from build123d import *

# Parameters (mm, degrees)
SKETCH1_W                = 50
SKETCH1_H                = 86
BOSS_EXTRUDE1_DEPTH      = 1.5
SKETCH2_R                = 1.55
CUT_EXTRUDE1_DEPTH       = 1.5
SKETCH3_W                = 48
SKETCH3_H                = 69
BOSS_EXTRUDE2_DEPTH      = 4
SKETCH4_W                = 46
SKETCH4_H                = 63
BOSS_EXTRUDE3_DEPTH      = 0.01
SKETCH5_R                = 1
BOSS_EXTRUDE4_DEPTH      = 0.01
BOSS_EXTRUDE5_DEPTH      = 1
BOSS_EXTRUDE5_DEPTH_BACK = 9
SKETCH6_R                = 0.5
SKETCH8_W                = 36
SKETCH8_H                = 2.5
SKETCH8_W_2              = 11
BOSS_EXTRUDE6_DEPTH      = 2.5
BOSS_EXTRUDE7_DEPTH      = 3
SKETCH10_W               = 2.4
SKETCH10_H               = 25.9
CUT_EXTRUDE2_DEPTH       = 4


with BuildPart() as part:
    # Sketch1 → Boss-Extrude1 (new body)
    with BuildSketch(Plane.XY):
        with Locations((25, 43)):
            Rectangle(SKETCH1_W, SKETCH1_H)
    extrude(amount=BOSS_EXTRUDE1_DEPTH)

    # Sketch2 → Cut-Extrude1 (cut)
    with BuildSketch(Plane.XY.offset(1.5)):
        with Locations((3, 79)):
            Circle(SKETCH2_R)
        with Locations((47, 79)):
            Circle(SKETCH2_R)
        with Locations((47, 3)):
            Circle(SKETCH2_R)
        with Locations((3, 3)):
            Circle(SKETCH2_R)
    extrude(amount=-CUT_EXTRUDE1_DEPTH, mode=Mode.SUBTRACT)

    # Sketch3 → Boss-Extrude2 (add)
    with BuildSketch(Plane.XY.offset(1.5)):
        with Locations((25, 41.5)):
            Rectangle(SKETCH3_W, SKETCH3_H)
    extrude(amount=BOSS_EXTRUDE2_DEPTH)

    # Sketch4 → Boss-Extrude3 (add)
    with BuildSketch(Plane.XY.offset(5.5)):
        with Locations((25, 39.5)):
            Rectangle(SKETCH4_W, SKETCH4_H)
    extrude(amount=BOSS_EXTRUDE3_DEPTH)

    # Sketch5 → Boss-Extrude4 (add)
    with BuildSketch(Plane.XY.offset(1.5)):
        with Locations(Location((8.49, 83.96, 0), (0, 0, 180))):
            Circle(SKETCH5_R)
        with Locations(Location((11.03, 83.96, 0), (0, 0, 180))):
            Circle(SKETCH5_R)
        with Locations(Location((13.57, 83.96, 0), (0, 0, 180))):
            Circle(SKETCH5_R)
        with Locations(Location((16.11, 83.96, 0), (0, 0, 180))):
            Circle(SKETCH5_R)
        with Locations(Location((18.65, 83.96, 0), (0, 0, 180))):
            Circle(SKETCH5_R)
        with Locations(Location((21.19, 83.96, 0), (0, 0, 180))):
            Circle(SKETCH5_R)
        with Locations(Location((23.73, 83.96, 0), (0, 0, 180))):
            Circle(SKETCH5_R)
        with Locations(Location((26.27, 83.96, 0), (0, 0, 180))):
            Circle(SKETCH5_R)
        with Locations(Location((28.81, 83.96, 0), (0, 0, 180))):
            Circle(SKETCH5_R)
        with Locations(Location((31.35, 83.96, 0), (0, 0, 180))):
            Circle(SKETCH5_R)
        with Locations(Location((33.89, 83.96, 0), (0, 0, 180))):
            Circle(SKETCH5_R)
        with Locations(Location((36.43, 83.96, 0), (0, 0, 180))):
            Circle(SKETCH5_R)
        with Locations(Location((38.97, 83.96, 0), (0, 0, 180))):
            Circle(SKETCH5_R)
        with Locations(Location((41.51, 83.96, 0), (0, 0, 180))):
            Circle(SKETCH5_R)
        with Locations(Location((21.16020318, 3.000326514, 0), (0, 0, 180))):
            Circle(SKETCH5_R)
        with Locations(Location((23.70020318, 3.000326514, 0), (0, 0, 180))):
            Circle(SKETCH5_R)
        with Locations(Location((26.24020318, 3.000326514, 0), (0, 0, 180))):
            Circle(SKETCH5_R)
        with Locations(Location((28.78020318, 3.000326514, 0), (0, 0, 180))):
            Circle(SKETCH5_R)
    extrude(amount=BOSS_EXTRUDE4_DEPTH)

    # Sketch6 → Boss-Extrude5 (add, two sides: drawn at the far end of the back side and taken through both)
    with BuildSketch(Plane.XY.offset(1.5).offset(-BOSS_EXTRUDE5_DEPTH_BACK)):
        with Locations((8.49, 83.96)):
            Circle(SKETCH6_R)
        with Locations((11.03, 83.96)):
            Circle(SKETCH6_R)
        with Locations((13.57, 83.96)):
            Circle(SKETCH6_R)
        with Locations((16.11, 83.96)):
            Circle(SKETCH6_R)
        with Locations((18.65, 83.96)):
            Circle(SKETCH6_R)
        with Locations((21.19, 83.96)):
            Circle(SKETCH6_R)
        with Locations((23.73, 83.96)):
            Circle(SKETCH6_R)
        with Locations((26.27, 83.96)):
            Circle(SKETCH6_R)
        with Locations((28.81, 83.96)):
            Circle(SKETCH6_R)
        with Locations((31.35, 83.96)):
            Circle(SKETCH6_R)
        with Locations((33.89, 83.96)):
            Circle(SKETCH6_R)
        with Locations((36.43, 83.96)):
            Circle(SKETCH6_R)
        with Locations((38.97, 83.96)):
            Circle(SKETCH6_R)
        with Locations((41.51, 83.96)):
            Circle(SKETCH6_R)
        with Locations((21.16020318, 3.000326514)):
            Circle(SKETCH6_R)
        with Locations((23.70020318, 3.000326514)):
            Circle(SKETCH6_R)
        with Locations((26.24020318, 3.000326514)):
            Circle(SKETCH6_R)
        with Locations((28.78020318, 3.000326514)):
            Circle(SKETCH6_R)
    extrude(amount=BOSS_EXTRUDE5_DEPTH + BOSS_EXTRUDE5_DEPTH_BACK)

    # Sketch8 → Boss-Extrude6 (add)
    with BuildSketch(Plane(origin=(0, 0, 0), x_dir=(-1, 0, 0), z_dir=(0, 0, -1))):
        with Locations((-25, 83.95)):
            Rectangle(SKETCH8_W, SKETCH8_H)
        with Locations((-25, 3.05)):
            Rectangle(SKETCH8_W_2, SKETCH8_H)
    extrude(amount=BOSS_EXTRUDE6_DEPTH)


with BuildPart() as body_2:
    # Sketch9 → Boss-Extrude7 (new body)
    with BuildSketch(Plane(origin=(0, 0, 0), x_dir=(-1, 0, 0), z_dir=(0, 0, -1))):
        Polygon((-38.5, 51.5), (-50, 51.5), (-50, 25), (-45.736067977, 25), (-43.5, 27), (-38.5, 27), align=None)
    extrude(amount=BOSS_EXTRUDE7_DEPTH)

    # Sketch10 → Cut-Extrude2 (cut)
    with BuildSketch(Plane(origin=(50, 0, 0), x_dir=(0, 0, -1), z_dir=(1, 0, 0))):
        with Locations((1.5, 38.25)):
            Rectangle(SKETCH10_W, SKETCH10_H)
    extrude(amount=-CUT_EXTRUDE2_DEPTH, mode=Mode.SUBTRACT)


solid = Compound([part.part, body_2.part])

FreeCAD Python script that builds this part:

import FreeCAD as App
import Part
import Sketcher

doc = App.newDocument("Part")
params = doc.addObject("Spreadsheet::Sheet", "Params")
for row, (alias, value) in enumerate([
    ("sketch1_width", "50 mm"),
    ("sketch1_height", "86 mm"),
    ("pad1_length", "1.5 mm"),
    ("sketch2_diameter", "3.1 mm"),
    ("pocket1_length", "1.5 mm"),
    ("sketch3_width", "48 mm"),
    ("sketch3_height", "69 mm"),
    ("pad2_length", "4 mm"),
    ("sketch4_width", "46 mm"),
    ("sketch4_height", "63 mm"),
    ("pad3_length", "0.01 mm"),
    ("sketch5_diameter", "2 mm"),
    ("pad4_length", "0.01 mm"),
    ("sketch6_diameter", "1 mm"),
    ("pad5_length", "1 mm"),
    ("pad5_length2", "9 mm"),
    ("sketch7_width", "36 mm"),
    ("sketch7_width2", "11 mm"),
    ("sketch7_height", "2.5 mm"),
    ("pad6_length", "2.5 mm"),
    ("sketch8_width", "5 mm"),
    ("sketch8_length", "3 mm"),
    ("sketch8_width2", "11.5 mm"),
    ("sketch8_height", "26.5 mm"),
    ("sketch8_height2", "24.5 mm"),
    ("pad7_length", "3 mm"),
    ("sketch9_width", "25.9 mm"),
    ("sketch9_height", "2.4 mm"),
    ("pocket2_length", "4 mm"),
], start=1):
    params.set(f"A{row}", alias)
    params.set(f"B{row}", "=" + value)
    params.setAlias(f"B{row}", alias)

body = doc.addObject("PartDesign::Body", "Body")

# Sketch on XY plane
sketch1 = body.newObject("Sketcher::SketchObject", "Sketch")
sketch1.AttachmentSupport = (doc.getObject("XY_Plane"), [""])
sketch1.MapMode = "FlatFace"
sketch1.addGeometry(Part.LineSegment(App.Vector(0, 86, 0), App.Vector(0, 0, 0)), False)
sketch1.addGeometry(Part.LineSegment(App.Vector(0, 0, 0), App.Vector(50, 0, 0)), False)
sketch1.addGeometry(Part.LineSegment(App.Vector(50, 0, 0), App.Vector(50, 86, 0)), False)
sketch1.addGeometry(Part.LineSegment(App.Vector(50, 86, 0), App.Vector(0, 86, 0)), False)
sketch1.addConstraint(Sketcher.Constraint("Coincident", 0, 2, 1, 1))
sketch1.addConstraint(Sketcher.Constraint("Coincident", 1, 2, 2, 1))
sketch1.addConstraint(Sketcher.Constraint("Coincident", 2, 2, 3, 1))
sketch1.addConstraint(Sketcher.Constraint("Coincident", 3, 2, 0, 1))
sketch1.addConstraint(Sketcher.Constraint("Vertical", 0))
sketch1.addConstraint(Sketcher.Constraint("Horizontal", 1))
sketch1.addConstraint(Sketcher.Constraint("Vertical", 2))
sketch1.addConstraint(Sketcher.Constraint("Horizontal", 3))
sketch1.addConstraint(Sketcher.Constraint("Coincident", 0, 2, -1, 1))
sketch1.addConstraint(Sketcher.Constraint("DistanceX", 1, 1, 1, 2, 50.0))
sketch1.addConstraint(Sketcher.Constraint("DistanceY", 0, 2, 0, 1, 86.0))
sketch1.setExpression("Constraints[9]", "Params.sketch1_width")
sketch1.setExpression("Constraints[10]", "Params.sketch1_height")
pad1 = body.newObject("PartDesign::Pad", "Pad")
pad1.Profile = sketch1
pad1.setExpression("Length", "Params.pad1_length")

# Sketch on XY plane
sketch2 = body.newObject("Sketcher::SketchObject", "Sketch001")
sketch2.AttachmentSupport = (doc.getObject("XY_Plane"), [""])
sketch2.MapMode = "FlatFace"
sketch2.AttachmentOffset = App.Placement(App.Vector(0, 0, 1.5), App.Rotation())
sketch2.addGeometry(Part.Circle(App.Vector(3, 79, 0), App.Vector(0, 0, 1), 1.6), False)
sketch2.addGeometry(Part.Circle(App.Vector(47, 79, 0), App.Vector(0, 0, 1), 1.6), False)
sketch2.addGeometry(Part.Circle(App.Vector(47, 3, 0), App.Vector(0, 0, 1), 1.6), False)
sketch2.addGeometry(Part.Circle(App.Vector(3, 3, 0), App.Vector(0, 0, 1), 1.6), False)
sketch2.addConstraint(Sketcher.Constraint("Equal", 0, 1))
sketch2.addConstraint(Sketcher.Constraint("Equal", 1, 2))
sketch2.addConstraint(Sketcher.Constraint("Equal", 2, 3))
sketch2.addConstraint(Sketcher.Constraint("Horizontal", 0, 3, 1, 3))
sketch2.addConstraint(Sketcher.Constraint("Horizontal", 2, 3, 3, 3))
sketch2.addConstraint(Sketcher.Constraint("Vertical", 1, 3, 2, 3))
sketch2.addConstraint(Sketcher.Constraint("Vertical", 0, 3, 3, 3))
sketch2.addConstraint(Sketcher.Constraint("Diameter", 0, 3.1))
sketch2.addConstraint(Sketcher.Constraint("DistanceX", -1, 1, 0, 3, 3.0))
sketch2.addConstraint(Sketcher.Constraint("DistanceY", -1, 1, 0, 3, 79.0))
sketch2.addConstraint(Sketcher.Constraint("DistanceX", -1, 1, 1, 3, 47.0))
sketch2.addConstraint(Sketcher.Constraint("DistanceY", -1, 1, 2, 3, 3.0))
sketch2.setExpression("Constraints[7]", "Params.sketch2_diameter")
pocket1 = body.newObject("PartDesign::Pocket", "Pocket")
pocket1.Profile = sketch2
pocket1.setExpression("Length", "Params.pocket1_length")

# Sketch on XY plane
sketch3 = body.newObject("Sketcher::SketchObject", "Sketch002")
sketch3.AttachmentSupport = (doc.getObject("XY_Plane"), [""])
sketch3.MapMode = "FlatFace"
sketch3.AttachmentOffset = App.Placement(App.Vector(0, 0, 1.5), App.Rotation())
sketch3.addGeometry(Part.LineSegment(App.Vector(1, 76, 0), App.Vector(1, 7, 0)), False)
sketch3.addGeometry(Part.LineSegment(App.Vector(1, 7, 0), App.Vector(49, 7, 0)), False)
sketch3.addGeometry(Part.LineSegment(App.Vector(49, 7, 0), App.Vector(49, 76, 0)), False)
sketch3.addGeometry(Part.LineSegment(App.Vector(49, 76, 0), App.Vector(1, 76, 0)), False)
sketch3.addConstraint(Sketcher.Constraint("Coincident", 0, 2, 1, 1))
sketch3.addConstraint(Sketcher.Constraint("Coincident", 1, 2, 2, 1))
sketch3.addConstraint(Sketcher.Constraint("Coincident", 2, 2, 3, 1))
sketch3.addConstraint(Sketcher.Constraint("Coincident", 3, 2, 0, 1))
sketch3.addConstraint(Sketcher.Constraint("Vertical", 0))
sketch3.addConstraint(Sketcher.Constraint("Horizontal", 1))
sketch3.addConstraint(Sketcher.Constraint("Vertical", 2))
sketch3.addConstraint(Sketcher.Constraint("Horizontal", 3))
sketch3.addConstraint(Sketcher.Constraint("DistanceX", 1, 1, 1, 2, 48.0))
sketch3.addConstraint(Sketcher.Constraint("DistanceY", 0, 2, 0, 1, 69.0))
sketch3.addConstraint(Sketcher.Constraint("DistanceX", -1, 1, 0, 2, 1.0))
sketch3.addConstraint(Sketcher.Constraint("DistanceY", -1, 1, 0, 2, 7.0))
sketch3.setExpression("Constraints[8]", "Params.sketch3_width")
sketch3.setExpression("Constraints[9]", "Params.sketch3_height")
pad2 = body.newObject("PartDesign::Pad", "Pad001")
pad2.Profile = sketch3
pad2.setExpression("Length", "Params.pad2_length")

# Sketch on XY plane
sketch4 = body.newObject("Sketcher::SketchObject", "Sketch003")
sketch4.AttachmentSupport = (doc.getObject("XY_Plane"), [""])
sketch4.MapMode = "FlatFace"
sketch4.AttachmentOffset = App.Placement(App.Vector(0, 0, 5.5), App.Rotation())
sketch4.addGeometry(Part.LineSegment(App.Vector(2, 71, 0), App.Vector(2, 8, 0)), False)
sketch4.addGeometry(Part.LineSegment(App.Vector(2, 8, 0), App.Vector(48, 8, 0)), False)
sketch4.addGeometry(Part.LineSegment(App.Vector(48, 8, 0), App.Vector(48, 71, 0)), False)
sketch4.addGeometry(Part.LineSegment(App.Vector(48, 71, 0), App.Vector(2, 71, 0)), False)
sketch4.addConstraint(Sketcher.Constraint("Coincident", 0, 2, 1, 1))
sketch4.addConstraint(Sketcher.Constraint("Coincident", 1, 2, 2, 1))
sketch4.addConstraint(Sketcher.Constraint("Coincident", 2, 2, 3, 1))
sketch4.addConstraint(Sketcher.Constraint("Coincident", 3, 2, 0, 1))
sketch4.addConstraint(Sketcher.Constraint("Vertical", 0))
sketch4.addConstraint(Sketcher.Constraint("Horizontal", 1))
sketch4.addConstraint(Sketcher.Constraint("Vertical", 2))
sketch4.addConstraint(Sketcher.Constraint("Horizontal", 3))
sketch4.addConstraint(Sketcher.Constraint("DistanceX", 1, 1, 1, 2, 46.0))
sketch4.addConstraint(Sketcher.Constraint("DistanceY", 0, 2, 0, 1, 63.0))
sketch4.addConstraint(Sketcher.Constraint("DistanceX", -1, 1, 0, 2, 2.0))
sketch4.addConstraint(Sketcher.Constraint("DistanceY", -1, 1, 0, 2, 8.0))
sketch4.setExpression("Constraints[8]", "Params.sketch4_width")
sketch4.setExpression("Constraints[9]", "Params.sketch4_height")
pad3 = body.newObject("PartDesign::Pad", "Pad002")
pad3.Profile = sketch4
pad3.setExpression("Length", "Params.pad3_length")

# Sketch on XY plane
sketch5 = body.newObject("Sketcher::SketchObject", "Sketch004")
sketch5.AttachmentSupport = (doc.getObject("XY_Plane"), [""])
sketch5.MapMode = "FlatFace"
sketch5.AttachmentOffset = App.Placement(App.Vector(0, 0, 1.5), App.Rotation())
sketch5.addGeometry(Part.Circle(App.Vector(8.5, 84, 0), App.Vector(0, 0, 1), 1), False)
sketch5.addGeometry(Part.Circle(App.Vector(11, 84, 0), App.Vector(0, 0, 1), 1), False)
sketch5.addGeometry(Part.Circle(App.Vector(13.6, 84, 0), App.Vector(0, 0, 1), 1), False)
sketch5.addGeometry(Part.Circle(App.Vector(16.1, 84, 0), App.Vector(0, 0, 1), 1), False)
sketch5.addGeometry(Part.Circle(App.Vector(18.6, 84, 0), App.Vector(0, 0, 1), 1), False)
sketch5.addGeometry(Part.Circle(App.Vector(21.2, 84, 0), App.Vector(0, 0, 1), 1), False)
sketch5.addGeometry(Part.Circle(App.Vector(23.7, 84, 0), App.Vector(0, 0, 1), 1), False)
sketch5.addGeometry(Part.Circle(App.Vector(26.3, 84, 0), App.Vector(0, 0, 1), 1), False)
sketch5.addGeometry(Part.Circle(App.Vector(28.8, 84, 0), App.Vector(0, 0, 1), 1), False)
sketch5.addGeometry(Part.Circle(App.Vector(31.4, 84, 0), App.Vector(0, 0, 1), 1), False)
sketch5.addGeometry(Part.Circle(App.Vector(33.9, 84, 0), App.Vector(0, 0, 1), 1), False)
sketch5.addGeometry(Part.Circle(App.Vector(36.4, 84, 0), App.Vector(0, 0, 1), 1), False)
sketch5.addGeometry(Part.Circle(App.Vector(39, 84, 0), App.Vector(0, 0, 1), 1), False)
sketch5.addGeometry(Part.Circle(App.Vector(41.5, 84, 0), App.Vector(0, 0, 1), 1), False)
sketch5.addGeometry(Part.Circle(App.Vector(21.2, 3, 0), App.Vector(0, 0, 1), 1), False)
sketch5.addGeometry(Part.Circle(App.Vector(23.7, 3, 0), App.Vector(0, 0, 1), 1), False)
sketch5.addGeometry(Part.Circle(App.Vector(26.2, 3, 0), App.Vector(0, 0, 1), 1), False)
sketch5.addGeometry(Part.Circle(App.Vector(28.8, 3, 0), App.Vector(0, 0, 1), 1), False)
sketch5.addConstraint(Sketcher.Constraint("Equal", 0, 1))
sketch5.addConstraint(Sketcher.Constraint("Equal", 1, 2))
sketch5.addConstraint(Sketcher.Constraint("Equal", 2, 3))
sketch5.addConstraint(Sketcher.Constraint("Equal", 3, 4))
sketch5.addConstraint(Sketcher.Constraint("Equal", 4, 5))
sketch5.addConstraint(Sketcher.Constraint("Equal", 5, 6))
sketch5.addConstraint(Sketcher.Constraint("Equal", 6, 7))
sketch5.addConstraint(Sketcher.Constraint("Equal", 7, 8))
sketch5.addConstraint(Sketcher.Constraint("Equal", 8, 9))
sketch5.addConstraint(Sketcher.Constraint("Equal", 9, 10))
sketch5.addConstraint(Sketcher.Constraint("Equal", 10, 11))
sketch5.addConstraint(Sketcher.Constraint("Equal", 11, 12))
sketch5.addConstraint(Sketcher.Constraint("Equal", 12, 13))
sketch5.addConstraint(Sketcher.Constraint("Equal", 13, 14))
sketch5.addConstraint(Sketcher.Constraint("Equal", 14, 15))
sketch5.addConstraint(Sketcher.Constraint("Equal", 15, 16))
sketch5.addConstraint(Sketcher.Constraint("Equal", 16, 17))
sketch5.addConstraint(Sketcher.Constraint("Horizontal", 0, 3, 1, 3))
sketch5.addConstraint(Sketcher.Constraint("Horizontal", 1, 3, 2, 3))
sketch5.addConstraint(Sketcher.Constraint("Horizontal", 2, 3, 3, 3))
sketch5.addConstraint(Sketcher.Constraint("Horizontal", 3, 3, 4, 3))
sketch5.addConstraint(Sketcher.Constraint("Horizontal", 4, 3, 5, 3))
sketch5.addConstraint(Sketcher.Constraint("Horizontal", 5, 3, 6, 3))
sketch5.addConstraint(Sketcher.Constraint("Horizontal", 6, 3, 7, 3))
sketch5.addConstraint(Sketcher.Constraint("Horizontal", 7, 3, 8, 3))
sketch5.addConstraint(Sketcher.Constraint("Horizontal", 8, 3, 9, 3))
sketch5.addConstraint(Sketcher.Constraint("Horizontal", 9, 3, 10, 3))
sketch5.addConstraint(Sketcher.Constraint("Horizontal", 10, 3, 11, 3))
sketch5.addConstraint(Sketcher.Constraint("Horizontal", 11, 3, 12, 3))
sketch5.addConstraint(Sketcher.Constraint("Horizontal", 12, 3, 13, 3))
sketch5.addConstraint(Sketcher.Constraint("Horizontal", 14, 3, 15, 3))
sketch5.addConstraint(Sketcher.Constraint("Horizontal", 15, 3, 16, 3))
sketch5.addConstraint(Sketcher.Constraint("Horizontal", 16, 3, 17, 3))
sketch5.addConstraint(Sketcher.Constraint("Diameter", 0, 2.0))
sketch5.addConstraint(Sketcher.Constraint("DistanceX", 0, 3, 5, 3, 12.7))
sketch5.addConstraint(Sketcher.Constraint("DistanceX", 1, 3, 6, 3, 12.7))
sketch5.addConstraint(Sketcher.Constraint("DistanceX", 2, 3, 7, 3, 12.7))
sketch5.addConstraint(Sketcher.Constraint("DistanceX", 3, 3, 8, 3, 12.7))
sketch5.addConstraint(Sketcher.Constraint("DistanceX", 4, 3, 9, 3, 12.7))
sketch5.addConstraint(Sketcher.Constraint("DistanceX", 5, 3, 10, 3, 12.7))
sketch5.addConstraint(Sketcher.Constraint("DistanceX", 6, 3, 11, 3, 12.7))
sketch5.addConstraint(Sketcher.Constraint("DistanceX", 7, 3, 12, 3, 12.7))
sketch5.addConstraint(Sketcher.Constraint("DistanceX", 8, 3, 13, 3, 12.7))
sketch5.addConstraint(Sketcher.Constraint("DistanceX", -1, 1, 0, 3, 8.49))
sketch5.addConstraint(Sketcher.Constraint("DistanceY", -1, 1, 0, 3, 83.96))
sketch5.addConstraint(Sketcher.Constraint("DistanceX", -1, 1, 1, 3, 11.03))
sketch5.addConstraint(Sketcher.Constraint("DistanceX", -1, 1, 2, 3, 13.57))
sketch5.addConstraint(Sketcher.Constraint("DistanceX", -1, 1, 3, 3, 16.11))
sketch5.addConstraint(Sketcher.Constraint("DistanceX", -1, 1, 4, 3, 18.65))
sketch5.addConstraint(Sketcher.Constraint("DistanceX", 14, 3, 15, 3, 2.54))
sketch5.addConstraint(Sketcher.Constraint("DistanceX", 15, 3, 16, 3, 2.54))
sketch5.addConstraint(Sketcher.Constraint("DistanceX", 16, 3, 17, 3, 2.54))
sketch5.addConstraint(Sketcher.Constraint("DistanceX", -1, 1, 14, 3, 21.160203))
sketch5.addConstraint(Sketcher.Constraint("DistanceY", -1, 1, 14, 3, 3.000327))
sketch5.setExpression("Constraints[33]", "Params.sketch5_diameter")
pad4 = body.newObject("PartDesign::Pad", "Pad003")
pad4.Profile = sketch5
pad4.setExpression("Length", "Params.pad4_length")

# Sketch on XY plane
sketch6 = body.newObject("Sketcher::SketchObject", "Sketch005")
sketch6.AttachmentSupport = (doc.getObject("XY_Plane"), [""])
sketch6.MapMode = "FlatFace"
sketch6.AttachmentOffset = App.Placement(App.Vector(0, 0, 1.5), App.Rotation())
sketch6.addGeometry(Part.Circle(App.Vector(8.5, 84, 0), App.Vector(0, 0, 1), 0.5), False)
sketch6.addGeometry(Part.Circle(App.Vector(11, 84, 0), App.Vector(0, 0, 1), 0.5), False)
sketch6.addGeometry(Part.Circle(App.Vector(13.6, 84, 0), App.Vector(0, 0, 1), 0.5), False)
sketch6.addGeometry(Part.Circle(App.Vector(16.1, 84, 0), App.Vector(0, 0, 1), 0.5), False)
sketch6.addGeometry(Part.Circle(App.Vector(18.6, 84, 0), App.Vector(0, 0, 1), 0.5), False)
sketch6.addGeometry(Part.Circle(App.Vector(21.2, 84, 0), App.Vector(0, 0, 1), 0.5), False)
sketch6.addGeometry(Part.Circle(App.Vector(23.7, 84, 0), App.Vector(0, 0, 1), 0.5), False)
sketch6.addGeometry(Part.Circle(App.Vector(26.3, 84, 0), App.Vector(0, 0, 1), 0.5), False)
sketch6.addGeometry(Part.Circle(App.Vector(28.8, 84, 0), App.Vector(0, 0, 1), 0.5), False)
sketch6.addGeometry(Part.Circle(App.Vector(31.4, 84, 0), App.Vector(0, 0, 1), 0.5), False)
sketch6.addGeometry(Part.Circle(App.Vector(33.9, 84, 0), App.Vector(0, 0, 1), 0.5), False)
sketch6.addGeometry(Part.Circle(App.Vector(36.4, 84, 0), App.Vector(0, 0, 1), 0.5), False)
sketch6.addGeometry(Part.Circle(App.Vector(39, 84, 0), App.Vector(0, 0, 1), 0.5), False)
sketch6.addGeometry(Part.Circle(App.Vector(41.5, 84, 0), App.Vector(0, 0, 1), 0.5), False)
sketch6.addGeometry(Part.Circle(App.Vector(21.2, 3, 0), App.Vector(0, 0, 1), 0.5), False)
sketch6.addGeometry(Part.Circle(App.Vector(23.7, 3, 0), App.Vector(0, 0, 1), 0.5), False)
sketch6.addGeometry(Part.Circle(App.Vector(26.2, 3, 0), App.Vector(0, 0, 1), 0.5), False)
sketch6.addGeometry(Part.Circle(App.Vector(28.8, 3, 0), App.Vector(0, 0, 1), 0.5), False)
sketch6.addConstraint(Sketcher.Constraint("Equal", 0, 1))
sketch6.addConstraint(Sketcher.Constraint("Equal", 1, 2))
sketch6.addConstraint(Sketcher.Constraint("Equal", 2, 3))
sketch6.addConstraint(Sketcher.Constraint("Equal", 3, 4))
sketch6.addConstraint(Sketcher.Constraint("Equal", 4, 5))
sketch6.addConstraint(Sketcher.Constraint("Equal", 5, 6))
sketch6.addConstraint(Sketcher.Constraint("Equal", 6, 7))
sketch6.addConstraint(Sketcher.Constraint("Equal", 7, 8))
sketch6.addConstraint(Sketcher.Constraint("Equal", 8, 9))
sketch6.addConstraint(Sketcher.Constraint("Equal", 9, 10))
sketch6.addConstraint(Sketcher.Constraint("Equal", 10, 11))
sketch6.addConstraint(Sketcher.Constraint("Equal", 11, 12))
sketch6.addConstraint(Sketcher.Constraint("Equal", 12, 13))
sketch6.addConstraint(Sketcher.Constraint("Equal", 13, 14))
sketch6.addConstraint(Sketcher.Constraint("Equal", 14, 15))
sketch6.addConstraint(Sketcher.Constraint("Equal", 15, 16))
sketch6.addConstraint(Sketcher.Constraint("Equal", 16, 17))
sketch6.addConstraint(Sketcher.Constraint("Horizontal", 0, 3, 1, 3))
sketch6.addConstraint(Sketcher.Constraint("Horizontal", 1, 3, 2, 3))
sketch6.addConstraint(Sketcher.Constraint("Horizontal", 2, 3, 3, 3))
sketch6.addConstraint(Sketcher.Constraint("Horizontal", 3, 3, 4, 3))
sketch6.addConstraint(Sketcher.Constraint("Horizontal", 4, 3, 5, 3))
sketch6.addConstraint(Sketcher.Constraint("Horizontal", 5, 3, 6, 3))
sketch6.addConstraint(Sketcher.Constraint("Horizontal", 6, 3, 7, 3))
sketch6.addConstraint(Sketcher.Constraint("Horizontal", 7, 3, 8, 3))
sketch6.addConstraint(Sketcher.Constraint("Horizontal", 8, 3, 9, 3))
sketch6.addConstraint(Sketcher.Constraint("Horizontal", 9, 3, 10, 3))
sketch6.addConstraint(Sketcher.Constraint("Horizontal", 10, 3, 11, 3))
sketch6.addConstraint(Sketcher.Constraint("Horizontal", 11, 3, 12, 3))
sketch6.addConstraint(Sketcher.Constraint("Horizontal", 12, 3, 13, 3))
sketch6.addConstraint(Sketcher.Constraint("Horizontal", 14, 3, 15, 3))
sketch6.addConstraint(Sketcher.Constraint("Horizontal", 15, 3, 16, 3))
sketch6.addConstraint(Sketcher.Constraint("Horizontal", 16, 3, 17, 3))
sketch6.addConstraint(Sketcher.Constraint("Diameter", 0, 1.0))
sketch6.addConstraint(Sketcher.Constraint("DistanceX", 0, 3, 5, 3, 12.7))
sketch6.addConstraint(Sketcher.Constraint("DistanceX", 1, 3, 6, 3, 12.7))
sketch6.addConstraint(Sketcher.Constraint("DistanceX", 2, 3, 7, 3, 12.7))
sketch6.addConstraint(Sketcher.Constraint("DistanceX", 3, 3, 8, 3, 12.7))
sketch6.addConstraint(Sketcher.Constraint("DistanceX", 4, 3, 9, 3, 12.7))
sketch6.addConstraint(Sketcher.Constraint("DistanceX", 5, 3, 10, 3, 12.7))
sketch6.addConstraint(Sketcher.Constraint("DistanceX", 6, 3, 11, 3, 12.7))
sketch6.addConstraint(Sketcher.Constraint("DistanceX", 7, 3, 12, 3, 12.7))
sketch6.addConstraint(Sketcher.Constraint("DistanceX", 8, 3, 13, 3, 12.7))
sketch6.addConstraint(Sketcher.Constraint("DistanceX", -1, 1, 0, 3, 8.49))
sketch6.addConstraint(Sketcher.Constraint("DistanceY", -1, 1, 0, 3, 83.96))
sketch6.addConstraint(Sketcher.Constraint("DistanceX", -1, 1, 1, 3, 11.03))
sketch6.addConstraint(Sketcher.Constraint("DistanceX", -1, 1, 2, 3, 13.57))
sketch6.addConstraint(Sketcher.Constraint("DistanceX", -1, 1, 3, 3, 16.11))
sketch6.addConstraint(Sketcher.Constraint("DistanceX", -1, 1, 4, 3, 18.65))
sketch6.addConstraint(Sketcher.Constraint("DistanceX", 14, 3, 15, 3, 2.54))
sketch6.addConstraint(Sketcher.Constraint("DistanceX", 15, 3, 16, 3, 2.54))
sketch6.addConstraint(Sketcher.Constraint("DistanceX", 16, 3, 17, 3, 2.54))
sketch6.addConstraint(Sketcher.Constraint("DistanceX", -1, 1, 14, 3, 21.160203))
sketch6.addConstraint(Sketcher.Constraint("DistanceY", -1, 1, 14, 3, 3.000327))
sketch6.setExpression("Constraints[33]", "Params.sketch6_diameter")
pad5 = body.newObject("PartDesign::Pad", "Pad004")
pad5.Profile = sketch6
pad5.Type = "TwoLengths"
pad5.setExpression("Length", "Params.pad5_length")
pad5.setExpression("Length2", "Params.pad5_length2")

# Sketch on XY plane
sketch7 = body.newObject("Sketcher::SketchObject", "Sketch006")
sketch7.AttachmentSupport = (doc.getObject("XY_Plane"), [""])
sketch7.MapMode = "FlatFace"
sketch7.addGeometry(Part.LineSegment(App.Vector(43, 85.2, 0), App.Vector(43, 82.7, 0)), False)
sketch7.addGeometry(Part.LineSegment(App.Vector(43, 82.7, 0), App.Vector(7, 82.7, 0)), False)
sketch7.addGeometry(Part.LineSegment(App.Vector(7, 82.7, 0), App.Vector(7, 85.2, 0)), False)
sketch7.addGeometry(Part.LineSegment(App.Vector(7, 85.2, 0), App.Vector(43, 85.2, 0)), False)
sketch7.addGeometry(Part.LineSegment(App.Vector(30.5, 4.3, 0), App.Vector(30.5, 1.8, 0)), False)
sketch7.addGeometry(Part.LineSegment(App.Vector(30.5, 1.8, 0), App.Vector(19.5, 1.8, 0)), False)
sketch7.addGeometry(Part.LineSegment(App.Vector(19.5, 1.8, 0), App.Vector(19.5, 4.3, 0)), False)
sketch7.addGeometry(Part.LineSegment(App.Vector(19.5, 4.3, 0), App.Vector(30.5, 4.3, 0)), False)
sketch7.addConstraint(Sketcher.Constraint("Coincident", 0, 2, 1, 1))
sketch7.addConstraint(Sketcher.Constraint("Coincident", 1, 2, 2, 1))
sketch7.addConstraint(Sketcher.Constraint("Coincident", 2, 2, 3, 1))
sketch7.addConstraint(Sketcher.Constraint("Coincident", 3, 2, 0, 1))
sketch7.addConstraint(Sketcher.Constraint("Coincident", 4, 2, 5, 1))
sketch7.addConstraint(Sketcher.Constraint("Coincident", 5, 2, 6, 1))
sketch7.addConstraint(Sketcher.Constraint("Coincident", 6, 2, 7, 1))
sketch7.addConstraint(Sketcher.Constraint("Coincident", 7, 2, 4, 1))
sketch7.addConstraint(Sketcher.Constraint("Vertical", 0))
sketch7.addConstraint(Sketcher.Constraint("Horizontal", 1))
sketch7.addConstraint(Sketcher.Constraint("Vertical", 2))
sketch7.addConstraint(Sketcher.Constraint("Horizontal", 3))
sketch7.addConstraint(Sketcher.Constraint("Vertical", 4))
sketch7.addConstraint(Sketcher.Constraint("Horizontal", 5))
sketch7.addConstraint(Sketcher.Constraint("Vertical", 6))
sketch7.addConstraint(Sketcher.Constraint("Horizontal", 7))
sketch7.addConstraint(Sketcher.Constraint("Equal", 2, 4))
sketch7.addConstraint(Sketcher.Constraint("DistanceX", 1, 2, 1, 1, 36.0))
sketch7.addConstraint(Sketcher.Constraint("DistanceX", 5, 2, 5, 1, 11.0))
sketch7.addConstraint(Sketcher.Constraint("DistanceY", 0, 2, 0, 1, 2.5))
sketch7.addConstraint(Sketcher.Constraint("DistanceX", -1, 1, 0, 2, 43.0))
sketch7.addConstraint(Sketcher.Constraint("DistanceY", -1, 1, 0, 2, 82.7))
sketch7.addConstraint(Sketcher.Constraint("DistanceX", -1, 1, 4, 2, 30.5))
sketch7.addConstraint(Sketcher.Constraint("DistanceY", -1, 1, 4, 2, 1.8))
sketch7.setExpression("Constraints[17]", "Params.sketch7_width")
sketch7.setExpression("Constraints[18]", "Params.sketch7_width2")
sketch7.setExpression("Constraints[19]", "Params.sketch7_height")
pad6 = body.newObject("PartDesign::Pad", "Pad005")
pad6.Profile = sketch7
pad6.setExpression("Length", "Params.pad6_length")
pad6.Reversed = True
body2 = doc.addObject("PartDesign::Body", "Body001")

# Sketch on XY plane
sketch8 = body2.newObject("Sketcher::SketchObject", "Sketch007")
sketch8.AttachmentSupport = (doc.getObject("XY_Plane001"), [""])
sketch8.MapMode = "FlatFace"
sketch8.addGeometry(Part.LineSegment(App.Vector(38.5, 51.5, 0), App.Vector(50, 51.5, 0)), False)
sketch8.addGeometry(Part.LineSegment(App.Vector(50, 51.5, 0), App.Vector(50, 25, 0)), False)
sketch8.addGeometry(Part.LineSegment(App.Vector(50, 25, 0), App.Vector(45.7, 25, 0)), False)
sketch8.addGeometry(Part.LineSegment(App.Vector(45.7, 25, 0), App.Vector(43.5, 27, 0)), False)
sketch8.addGeometry(Part.LineSegment(App.Vector(43.5, 27, 0), App.Vector(38.5, 27, 0)), False)
sketch8.addGeometry(Part.LineSegment(App.Vector(38.5, 27, 0), App.Vector(38.5, 51.5, 0)), False)
sketch8.addConstraint(Sketcher.Constraint("Coincident", 0, 2, 1, 1))
sketch8.addConstraint(Sketcher.Constraint("Coincident", 1, 2, 2, 1))
sketch8.addConstraint(Sketcher.Constraint("Coincident", 2, 2, 3, 1))
sketch8.addConstraint(Sketcher.Constraint("Coincident", 3, 2, 4, 1))
sketch8.addConstraint(Sketcher.Constraint("Coincident", 4, 2, 5, 1))
sketch8.addConstraint(Sketcher.Constraint("Coincident", 5, 2, 0, 1))
sketch8.addConstraint(Sketcher.Constraint("Horizontal", 0))
sketch8.addConstraint(Sketcher.Constraint("Vertical", 1))
sketch8.addConstraint(Sketcher.Constraint("Horizontal", 2))
sketch8.addConstraint(Sketcher.Constraint("Horizontal", 4))
sketch8.addConstraint(Sketcher.Constraint("Vertical", 5))
sketch8.addConstraint(Sketcher.Constraint("DistanceX", 4, 2, 4, 1, 5.0))
sketch8.addConstraint(Sketcher.Constraint("Distance", 3, 3.0))
sketch8.addConstraint(Sketcher.Constraint("DistanceX", 0, 1, 0, 2, 11.5))
sketch8.addConstraint(Sketcher.Constraint("DistanceY", 1, 2, 1, 1, 26.5))
sketch8.addConstraint(Sketcher.Constraint("DistanceY", 5, 1, 5, 2, 24.5))
sketch8.addConstraint(Sketcher.Constraint("DistanceX", -1, 1, 0, 2, 50.0))
sketch8.addConstraint(Sketcher.Constraint("DistanceY", -1, 1, 1, 2, 25.0))
sketch8.setExpression("Constraints[11]", "Params.sketch8_width")
sketch8.setExpression("Constraints[12]", "Params.sketch8_length")
sketch8.setExpression("Constraints[13]", "Params.sketch8_width2")
sketch8.setExpression("Constraints[14]", "Params.sketch8_height")
sketch8.setExpression("Constraints[15]", "Params.sketch8_height2")
pad7 = body2.newObject("PartDesign::Pad", "Pad006")
pad7.Profile = sketch8
pad7.setExpression("Length", "Params.pad7_length")
pad7.Reversed = True

# Sketch on YZ plane
sketch9 = body2.newObject("Sketcher::SketchObject", "Sketch008")
sketch9.AttachmentSupport = (doc.getObject("YZ_Plane001"), [""])
sketch9.MapMode = "FlatFace"
sketch9.AttachmentOffset = App.Placement(App.Vector(0, 0, 50), App.Rotation())
sketch9.addGeometry(Part.LineSegment(App.Vector(51.2, -0.3, 0), App.Vector(25.3, -0.3, 0)), False)
sketch9.addGeometry(Part.LineSegment(App.Vector(25.3, -0.3, 0), App.Vector(25.3, -2.7, 0)), False)
sketch9.addGeometry(Part.LineSegment(App.Vector(25.3, -2.7, 0), App.Vector(51.2, -2.7, 0)), False)
sketch9.addGeometry(Part.LineSegment(App.Vector(51.2, -2.7, 0), App.Vector(51.2, -0.3, 0)), False)
sketch9.addConstraint(Sketcher.Constraint("Coincident", 0, 2, 1, 1))
sketch9.addConstraint(Sketcher.Constraint("Coincident", 1, 2, 2, 1))
sketch9.addConstraint(Sketcher.Constraint("Coincident", 2, 2, 3, 1))
sketch9.addConstraint(Sketcher.Constraint("Coincident", 3, 2, 0, 1))
sketch9.addConstraint(Sketcher.Constraint("Horizontal", 0))
sketch9.addConstraint(Sketcher.Constraint("Vertical", 1))
sketch9.addConstraint(Sketcher.Constraint("Horizontal", 2))
sketch9.addConstraint(Sketcher.Constraint("Vertical", 3))
sketch9.addConstraint(Sketcher.Constraint("DistanceX", 0, 2, 0, 1, 25.9))
sketch9.addConstraint(Sketcher.Constraint("DistanceY", 1, 2, 1, 1, 2.4))
sketch9.addConstraint(Sketcher.Constraint("DistanceX", -1, 1, 0, 2, 25.3))
sketch9.addConstraint(Sketcher.Constraint("DistanceY", 0, 2, -1, 1, 0.3))
sketch9.setExpression("Constraints[8]", "Params.sketch9_width")
sketch9.setExpression("Constraints[9]", "Params.sketch9_height")
pocket2 = body2.newObject("PartDesign::Pocket", "Pocket001")
pocket2.Profile = sketch9
pocket2.setExpression("Length", "Params.pocket2_length")

doc.recompute()
